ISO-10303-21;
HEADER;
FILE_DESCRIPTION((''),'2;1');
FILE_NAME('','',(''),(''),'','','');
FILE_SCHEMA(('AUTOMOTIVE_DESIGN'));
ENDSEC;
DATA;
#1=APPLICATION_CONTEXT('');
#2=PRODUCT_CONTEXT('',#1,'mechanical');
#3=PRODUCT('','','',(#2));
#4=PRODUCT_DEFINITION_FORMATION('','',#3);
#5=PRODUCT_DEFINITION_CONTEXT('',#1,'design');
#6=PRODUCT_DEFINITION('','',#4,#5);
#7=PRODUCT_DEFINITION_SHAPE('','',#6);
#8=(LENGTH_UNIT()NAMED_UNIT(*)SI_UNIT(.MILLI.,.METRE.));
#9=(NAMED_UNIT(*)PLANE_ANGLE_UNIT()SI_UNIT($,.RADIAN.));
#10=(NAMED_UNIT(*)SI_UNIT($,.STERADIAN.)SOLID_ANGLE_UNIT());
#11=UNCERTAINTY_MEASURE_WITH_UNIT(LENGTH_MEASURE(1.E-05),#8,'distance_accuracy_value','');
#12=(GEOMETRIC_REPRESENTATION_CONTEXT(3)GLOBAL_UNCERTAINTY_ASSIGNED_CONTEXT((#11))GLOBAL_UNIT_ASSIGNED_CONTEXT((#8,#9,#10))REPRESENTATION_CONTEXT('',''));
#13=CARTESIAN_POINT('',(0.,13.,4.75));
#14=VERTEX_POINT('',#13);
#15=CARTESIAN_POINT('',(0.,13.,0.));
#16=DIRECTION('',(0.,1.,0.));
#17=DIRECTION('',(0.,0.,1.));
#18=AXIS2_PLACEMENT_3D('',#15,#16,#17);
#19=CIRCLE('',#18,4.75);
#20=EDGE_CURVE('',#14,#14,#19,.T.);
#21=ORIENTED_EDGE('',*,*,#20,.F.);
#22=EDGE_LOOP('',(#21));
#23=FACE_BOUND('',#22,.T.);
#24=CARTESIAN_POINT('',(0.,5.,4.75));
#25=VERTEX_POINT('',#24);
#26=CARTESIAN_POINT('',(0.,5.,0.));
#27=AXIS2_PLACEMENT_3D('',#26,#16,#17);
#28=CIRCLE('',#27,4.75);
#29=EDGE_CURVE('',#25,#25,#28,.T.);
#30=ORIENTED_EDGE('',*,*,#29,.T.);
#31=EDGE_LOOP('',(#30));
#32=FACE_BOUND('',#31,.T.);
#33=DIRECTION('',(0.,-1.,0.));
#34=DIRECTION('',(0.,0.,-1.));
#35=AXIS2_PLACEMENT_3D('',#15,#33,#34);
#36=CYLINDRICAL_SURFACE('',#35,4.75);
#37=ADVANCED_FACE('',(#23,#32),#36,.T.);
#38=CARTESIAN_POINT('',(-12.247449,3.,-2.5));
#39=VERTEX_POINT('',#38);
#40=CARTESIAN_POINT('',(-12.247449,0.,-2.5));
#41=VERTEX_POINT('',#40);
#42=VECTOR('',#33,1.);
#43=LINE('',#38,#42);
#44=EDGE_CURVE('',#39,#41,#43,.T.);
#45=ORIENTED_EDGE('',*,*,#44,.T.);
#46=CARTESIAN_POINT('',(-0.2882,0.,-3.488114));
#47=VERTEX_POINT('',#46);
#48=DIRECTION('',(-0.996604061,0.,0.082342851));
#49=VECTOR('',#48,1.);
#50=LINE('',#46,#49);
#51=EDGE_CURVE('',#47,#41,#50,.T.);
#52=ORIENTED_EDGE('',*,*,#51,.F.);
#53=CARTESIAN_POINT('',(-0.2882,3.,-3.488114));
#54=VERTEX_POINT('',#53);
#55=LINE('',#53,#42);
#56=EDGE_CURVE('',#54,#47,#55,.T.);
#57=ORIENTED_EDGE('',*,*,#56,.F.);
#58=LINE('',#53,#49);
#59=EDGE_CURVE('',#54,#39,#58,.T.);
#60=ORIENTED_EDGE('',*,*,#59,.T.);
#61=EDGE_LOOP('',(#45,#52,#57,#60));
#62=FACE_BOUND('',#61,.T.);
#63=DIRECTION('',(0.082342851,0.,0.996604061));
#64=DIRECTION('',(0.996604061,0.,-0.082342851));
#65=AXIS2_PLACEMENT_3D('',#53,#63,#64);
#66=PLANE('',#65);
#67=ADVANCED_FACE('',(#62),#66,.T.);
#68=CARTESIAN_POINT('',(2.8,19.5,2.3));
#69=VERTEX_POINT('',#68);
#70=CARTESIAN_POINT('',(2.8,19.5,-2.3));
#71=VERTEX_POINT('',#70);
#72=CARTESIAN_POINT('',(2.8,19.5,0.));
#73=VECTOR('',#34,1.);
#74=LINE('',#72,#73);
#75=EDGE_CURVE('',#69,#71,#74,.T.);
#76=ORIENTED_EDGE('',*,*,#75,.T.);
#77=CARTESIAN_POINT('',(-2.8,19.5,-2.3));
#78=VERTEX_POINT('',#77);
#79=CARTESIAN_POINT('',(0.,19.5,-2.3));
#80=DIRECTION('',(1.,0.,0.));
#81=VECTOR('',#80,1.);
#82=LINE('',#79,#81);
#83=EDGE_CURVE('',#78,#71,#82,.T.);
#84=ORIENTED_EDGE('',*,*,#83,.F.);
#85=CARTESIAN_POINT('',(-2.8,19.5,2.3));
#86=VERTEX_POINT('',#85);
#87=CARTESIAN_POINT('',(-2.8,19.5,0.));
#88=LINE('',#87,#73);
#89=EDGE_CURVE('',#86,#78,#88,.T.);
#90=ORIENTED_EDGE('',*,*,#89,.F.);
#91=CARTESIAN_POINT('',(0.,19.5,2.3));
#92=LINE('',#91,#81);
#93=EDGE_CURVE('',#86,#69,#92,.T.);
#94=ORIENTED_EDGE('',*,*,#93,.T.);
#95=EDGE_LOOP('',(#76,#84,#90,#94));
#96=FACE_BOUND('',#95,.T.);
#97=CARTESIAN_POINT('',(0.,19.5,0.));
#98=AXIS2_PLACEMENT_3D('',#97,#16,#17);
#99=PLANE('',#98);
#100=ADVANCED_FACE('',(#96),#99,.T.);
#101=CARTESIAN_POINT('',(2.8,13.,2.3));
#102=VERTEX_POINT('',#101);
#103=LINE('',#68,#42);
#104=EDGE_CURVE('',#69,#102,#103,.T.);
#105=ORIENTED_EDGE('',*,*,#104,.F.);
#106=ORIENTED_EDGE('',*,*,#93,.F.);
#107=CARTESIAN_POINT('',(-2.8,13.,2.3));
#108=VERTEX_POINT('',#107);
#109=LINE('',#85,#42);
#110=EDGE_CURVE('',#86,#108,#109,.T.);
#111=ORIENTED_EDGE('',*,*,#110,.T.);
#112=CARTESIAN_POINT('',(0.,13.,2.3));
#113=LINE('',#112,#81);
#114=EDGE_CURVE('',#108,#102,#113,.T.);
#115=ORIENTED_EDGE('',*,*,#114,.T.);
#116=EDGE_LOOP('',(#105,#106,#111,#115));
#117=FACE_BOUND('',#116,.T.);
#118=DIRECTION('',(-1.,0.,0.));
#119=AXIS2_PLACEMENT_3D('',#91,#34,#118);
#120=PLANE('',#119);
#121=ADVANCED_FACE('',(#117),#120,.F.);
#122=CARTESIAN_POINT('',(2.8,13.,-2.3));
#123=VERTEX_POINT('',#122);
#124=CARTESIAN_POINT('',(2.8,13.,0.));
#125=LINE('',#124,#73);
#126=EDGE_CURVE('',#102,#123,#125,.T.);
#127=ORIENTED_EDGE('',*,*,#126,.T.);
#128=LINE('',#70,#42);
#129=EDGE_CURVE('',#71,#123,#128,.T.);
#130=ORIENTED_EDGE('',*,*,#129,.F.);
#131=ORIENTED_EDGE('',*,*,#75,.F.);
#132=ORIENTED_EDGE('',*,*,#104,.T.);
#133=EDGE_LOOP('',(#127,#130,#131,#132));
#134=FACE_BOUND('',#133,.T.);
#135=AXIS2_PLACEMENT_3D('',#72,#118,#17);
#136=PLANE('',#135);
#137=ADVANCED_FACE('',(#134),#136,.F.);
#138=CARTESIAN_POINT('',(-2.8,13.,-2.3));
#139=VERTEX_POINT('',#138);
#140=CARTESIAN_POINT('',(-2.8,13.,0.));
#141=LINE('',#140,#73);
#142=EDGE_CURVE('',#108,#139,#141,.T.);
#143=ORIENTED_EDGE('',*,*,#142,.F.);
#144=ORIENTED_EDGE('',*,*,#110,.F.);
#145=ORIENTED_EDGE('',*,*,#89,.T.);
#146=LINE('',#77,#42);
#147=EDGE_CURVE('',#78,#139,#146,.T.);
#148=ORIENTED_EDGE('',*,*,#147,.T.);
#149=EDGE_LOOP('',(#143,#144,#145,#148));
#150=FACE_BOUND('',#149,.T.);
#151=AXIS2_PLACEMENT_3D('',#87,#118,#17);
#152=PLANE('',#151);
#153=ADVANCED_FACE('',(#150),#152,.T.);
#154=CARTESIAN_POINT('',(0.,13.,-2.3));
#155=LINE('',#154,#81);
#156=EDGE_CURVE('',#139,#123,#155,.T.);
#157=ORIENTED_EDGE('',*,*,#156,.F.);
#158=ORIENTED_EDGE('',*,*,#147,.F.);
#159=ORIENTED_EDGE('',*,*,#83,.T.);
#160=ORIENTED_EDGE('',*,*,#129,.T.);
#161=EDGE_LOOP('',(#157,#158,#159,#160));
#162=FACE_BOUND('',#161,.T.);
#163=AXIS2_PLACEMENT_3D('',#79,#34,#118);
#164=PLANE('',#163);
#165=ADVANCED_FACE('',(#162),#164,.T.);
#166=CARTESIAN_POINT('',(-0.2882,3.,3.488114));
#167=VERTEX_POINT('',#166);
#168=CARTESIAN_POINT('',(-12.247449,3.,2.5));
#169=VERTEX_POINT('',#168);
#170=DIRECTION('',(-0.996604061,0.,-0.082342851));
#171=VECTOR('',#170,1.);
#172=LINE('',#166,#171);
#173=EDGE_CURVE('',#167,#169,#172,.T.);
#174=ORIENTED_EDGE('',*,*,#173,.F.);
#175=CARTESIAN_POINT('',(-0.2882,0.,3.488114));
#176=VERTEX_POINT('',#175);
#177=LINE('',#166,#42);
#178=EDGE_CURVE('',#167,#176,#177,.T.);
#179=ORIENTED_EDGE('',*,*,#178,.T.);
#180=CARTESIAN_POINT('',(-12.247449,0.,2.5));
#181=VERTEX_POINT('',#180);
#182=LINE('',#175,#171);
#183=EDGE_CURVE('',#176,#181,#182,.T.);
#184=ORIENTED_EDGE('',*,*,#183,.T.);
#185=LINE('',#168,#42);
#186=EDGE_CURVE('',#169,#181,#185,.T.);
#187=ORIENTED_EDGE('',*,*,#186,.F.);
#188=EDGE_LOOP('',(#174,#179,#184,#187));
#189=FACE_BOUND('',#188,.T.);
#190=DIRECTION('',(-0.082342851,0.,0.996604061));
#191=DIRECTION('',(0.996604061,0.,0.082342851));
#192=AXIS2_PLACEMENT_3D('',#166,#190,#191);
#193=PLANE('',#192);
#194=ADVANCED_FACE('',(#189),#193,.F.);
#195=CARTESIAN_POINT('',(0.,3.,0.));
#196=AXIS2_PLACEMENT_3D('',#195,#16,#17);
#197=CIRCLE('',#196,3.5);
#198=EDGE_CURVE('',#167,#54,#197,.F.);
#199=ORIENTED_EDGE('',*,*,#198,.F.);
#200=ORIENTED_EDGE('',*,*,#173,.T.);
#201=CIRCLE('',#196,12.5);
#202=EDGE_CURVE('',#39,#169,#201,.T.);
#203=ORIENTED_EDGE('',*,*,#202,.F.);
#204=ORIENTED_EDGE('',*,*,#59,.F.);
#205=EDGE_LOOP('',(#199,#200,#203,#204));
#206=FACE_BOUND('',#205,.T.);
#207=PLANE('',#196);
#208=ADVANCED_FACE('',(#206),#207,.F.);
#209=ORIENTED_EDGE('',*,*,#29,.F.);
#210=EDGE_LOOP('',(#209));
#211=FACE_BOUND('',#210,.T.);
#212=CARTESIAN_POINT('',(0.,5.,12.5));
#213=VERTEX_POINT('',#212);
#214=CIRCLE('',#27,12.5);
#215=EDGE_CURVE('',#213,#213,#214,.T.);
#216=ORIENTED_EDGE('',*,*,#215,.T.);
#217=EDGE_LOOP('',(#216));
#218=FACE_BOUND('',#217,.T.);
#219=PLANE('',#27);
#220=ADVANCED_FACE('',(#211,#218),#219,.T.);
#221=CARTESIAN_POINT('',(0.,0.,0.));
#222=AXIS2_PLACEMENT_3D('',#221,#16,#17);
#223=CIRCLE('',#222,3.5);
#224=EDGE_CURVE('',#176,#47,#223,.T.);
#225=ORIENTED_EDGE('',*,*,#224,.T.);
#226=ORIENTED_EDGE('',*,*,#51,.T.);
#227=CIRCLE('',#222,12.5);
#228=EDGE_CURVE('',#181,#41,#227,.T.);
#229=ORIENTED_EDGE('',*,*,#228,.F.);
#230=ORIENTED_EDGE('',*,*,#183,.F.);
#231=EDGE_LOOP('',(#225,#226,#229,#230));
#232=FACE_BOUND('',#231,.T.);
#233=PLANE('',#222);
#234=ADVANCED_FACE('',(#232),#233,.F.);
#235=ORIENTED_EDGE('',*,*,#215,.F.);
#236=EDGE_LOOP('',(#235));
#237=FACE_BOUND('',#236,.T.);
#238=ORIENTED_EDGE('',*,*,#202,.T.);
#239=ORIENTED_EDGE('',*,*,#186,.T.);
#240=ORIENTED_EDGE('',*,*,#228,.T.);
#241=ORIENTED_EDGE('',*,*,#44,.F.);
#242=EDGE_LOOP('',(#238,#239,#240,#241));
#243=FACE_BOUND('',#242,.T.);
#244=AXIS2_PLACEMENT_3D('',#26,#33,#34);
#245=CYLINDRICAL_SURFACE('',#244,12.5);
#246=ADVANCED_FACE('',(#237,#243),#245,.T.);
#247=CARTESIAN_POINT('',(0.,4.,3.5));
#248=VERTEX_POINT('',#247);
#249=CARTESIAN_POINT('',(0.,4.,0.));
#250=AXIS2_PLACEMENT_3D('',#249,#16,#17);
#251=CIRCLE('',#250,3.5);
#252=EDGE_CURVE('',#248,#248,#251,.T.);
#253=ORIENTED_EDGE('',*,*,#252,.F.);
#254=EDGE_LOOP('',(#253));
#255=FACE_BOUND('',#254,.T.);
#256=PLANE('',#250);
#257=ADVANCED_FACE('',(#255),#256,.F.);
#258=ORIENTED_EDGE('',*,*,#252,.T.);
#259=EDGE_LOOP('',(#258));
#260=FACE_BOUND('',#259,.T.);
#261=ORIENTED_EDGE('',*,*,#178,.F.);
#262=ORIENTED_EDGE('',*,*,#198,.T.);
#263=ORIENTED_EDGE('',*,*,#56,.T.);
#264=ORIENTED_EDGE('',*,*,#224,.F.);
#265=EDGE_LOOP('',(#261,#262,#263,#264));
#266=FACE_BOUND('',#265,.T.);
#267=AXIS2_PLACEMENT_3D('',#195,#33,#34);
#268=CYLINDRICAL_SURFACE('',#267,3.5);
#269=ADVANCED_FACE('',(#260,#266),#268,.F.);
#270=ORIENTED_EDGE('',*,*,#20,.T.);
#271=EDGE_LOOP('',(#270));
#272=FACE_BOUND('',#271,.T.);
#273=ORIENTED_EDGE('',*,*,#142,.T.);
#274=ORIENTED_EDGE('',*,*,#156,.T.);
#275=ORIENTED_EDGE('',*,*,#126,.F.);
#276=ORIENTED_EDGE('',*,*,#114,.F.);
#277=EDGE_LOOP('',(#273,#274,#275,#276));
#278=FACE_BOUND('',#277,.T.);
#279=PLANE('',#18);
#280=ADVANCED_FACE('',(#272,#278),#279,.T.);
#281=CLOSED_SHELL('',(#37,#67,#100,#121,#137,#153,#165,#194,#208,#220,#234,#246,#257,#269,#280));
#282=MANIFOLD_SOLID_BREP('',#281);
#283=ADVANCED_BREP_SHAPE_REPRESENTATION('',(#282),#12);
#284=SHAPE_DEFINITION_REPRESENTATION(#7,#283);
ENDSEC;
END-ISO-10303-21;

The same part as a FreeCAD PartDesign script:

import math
import FreeCAD as App
import Part
import Sketcher

V = App.Vector

doc = App.newDocument("Part")
body = doc.addObject("PartDesign::Body", "Body")

sketch1 = doc.addObject("Sketcher::SketchObject", "Sketch")
body.addObject(sketch1)
sketch1.AttachmentSupport = (doc.XZ_Plane, [""])
sketch1.MapMode = "FlatFace"
sketch1.addGeometry([
    Part.Circle(V(0, 0, 0), V(0, 0, 1), 12.5),
    Part.Circle(V(0, 0, 0), V(0, 0, 1), 4.75),
], False)
sketch1.addConstraint([
    Sketcher.Constraint("Coincident", 0, 3, -1, 1),
    Sketcher.Constraint("Coincident", 1, 3, -1, 1),
    Sketcher.Constraint("Diameter", 0, 25.0),
    Sketcher.Constraint("Diameter", 1, 9.5),
])
pad1 = doc.addObject("PartDesign::Pad", "Pad")
body.addObject(pad1)
pad1.Profile = sketch1
pad1.Length = 5
pad1.Reversed = True

sketch2 = doc.addObject("Sketcher::SketchObject", "Sketch001")
body.addObject(sketch2)
sketch2.AttachmentSupport = (doc.XZ_Plane, [""])
sketch2.MapMode = "FlatFace"
sketch2.addGeometry([
    Part.Circle(V(0, 0, 0), V(0, 0, 1), 4.75),
    Part.LineSegment(V(2.8, 2.3, 0), V(-2.8, 2.3, 0)),
    Part.LineSegment(V(-2.8, 2.3, 0), V(-2.8, -2.3, 0)),
    Part.LineSegment(V(-2.8, -2.3, 0), V(2.8, -2.3, 0)),
    Part.LineSegment(V(2.8, -2.3, 0), V(2.8, 2.3, 0)),
], False)
sketch2.addConstraint([
    Sketcher.Constraint("Coincident", 1, 2, 2, 1),
    Sketcher.Constraint("Coincident", 2, 2, 3, 1),
    Sketcher.Constraint("Coincident", 3, 2, 4, 1),
    Sketcher.Constraint("Coincident", 4, 2, 1, 1),
    Sketcher.Constraint("Horizontal", 1),
    Sketcher.Constraint("Vertical", 2),
    Sketcher.Constraint("Horizontal", 3),
    Sketcher.Constraint("Vertical", 4),
    Sketcher.Constraint("Coincident", 0, 3, -1, 1),
    Sketcher.Constraint("Symmetric", 1, 2, 3, 2, -1, 1),
    Sketcher.Constraint("Diameter", 0, 9.5),
    Sketcher.Constraint("DistanceX", 1, 2, 1, 1, 5.6),
    Sketcher.Constraint("DistanceY", 2, 2, 2, 1, 4.6),
])
pad2 = doc.addObject("PartDesign::Pad", "Pad001")
body.addObject(pad2)
pad2.Profile = sketch2
pad2.Length = 13
pad2.Reversed = True

sketch3 = doc.addObject("Sketcher::SketchObject", "Sketch002")
body.addObject(sketch3)
sketch3.AttachmentSupport = (doc.XZ_Plane, [""])
sketch3.MapMode = "FlatFace"
sketch3.addGeometry([
    Part.LineSegment(V(-2.8, -2.3, 0), V(-2.8, 2.3, 0)),
    Part.LineSegment(V(-2.8, 2.3, 0), V(2.8, 2.3, 0)),
    Part.LineSegment(V(2.8, 2.3, 0), V(2.8, -2.3, 0)),
    Part.LineSegment(V(2.8, -2.3, 0), V(-2.8, -2.3, 0)),
], False)
sketch3.addConstraint([
    Sketcher.Constraint("Coincident", 0, 2, 1, 1),
    Sketcher.Constraint("Coincident", 1, 2, 2, 1),
    Sketcher.Constraint("Coincident", 2, 2, 3, 1),
    Sketcher.Constraint("Coincident", 3, 2, 0, 1),
    Sketcher.Constraint("Vertical", 0),
    Sketcher.Constraint("Horizontal", 1),
    Sketcher.Constraint("Vertical", 2),
    Sketcher.Constraint("Horizontal", 3),
    Sketcher.Constraint("Symmetric", 0, 2, 2, 2, -1, 1),
    Sketcher.Constraint("DistanceX", 1, 1, 1, 2, 5.6),
    Sketcher.Constraint("DistanceY", 0, 1, 0, 2, 4.6),
])
pad3 = doc.addObject("PartDesign::Pad", "Pad002")
body.addObject(pad3)
pad3.Profile = sketch3
pad3.Length = 19.5
pad3.Reversed = True

sketch4 = doc.addObject("Sketcher::SketchObject", "Sketch003")
body.addObject(sketch4)
sketch4.AttachmentSupport = (doc.XZ_Plane, [""])
sketch4.MapMode = "FlatFace"
sketch4.addGeometry([
    Part.LineSegment(V(-0.2882, -3.488114, 0), V(-12.247449, -2.5, 0)),
    Part.ArcOfCircle(Part.Circle(V(0, 0, 0), V(0, 0, 1), 12.5), math.radians(168.463041), math.radians(191.536959)),
    Part.LineSegment(V(-12.247449, 2.5, 0), V(-0.2882, 3.488114, 0)),
    Part.ArcOfCircle(Part.Circle(V(0, 0, 0), V(0, 0, 1), 3.5), math.radians(-94.723246), math.radians(94.723246)),
], False)
sketch4.addConstraint([
    Sketcher.Constraint("Coincident", 0, 2, 1, 2),
    Sketcher.Constraint("Coincident", 1, 1, 2, 1),
    Sketcher.Constraint("Tangent", 2, 2, 3, 2),
    Sketcher.Constraint("Tangent", 3, 1, 0, 1),
    Sketcher.Constraint("Coincident", 1, 3, -1, 1),
    Sketcher.Constraint("Coincident", 3, 3, -1, 1),
    Sketcher.Constraint("Vertical", 0, 2, 1, 1),
    Sketcher.Constraint("Radius", 1, 12.5),
    Sketcher.Constraint("Radius", 3, 3.5),
    Sketcher.Constraint("DistanceY", 0, 2, 1, 1, 5.0),
])
pocket1 = doc.addObject("PartDesign::Pocket", "Pocket")
body.addObject(pocket1)
pocket1.Profile = sketch4
pocket1.Length = 3

sketch5 = doc.addObject("Sketcher::SketchObject", "Sketch004")
body.addObject(sketch5)
sketch5.AttachmentSupport = (doc.XZ_Plane, [""])
sketch5.MapMode = "FlatFace"
sketch5.addGeometry(Part.Circle(V(0, 0, 0), V(0, 0, 1), 3.5), False)
sketch5.addConstraint([
    Sketcher.Constraint("Coincident", 0, 3, -1, 1),
    Sketcher.Constraint("Diameter", 0, 7.0),
])
pocket2 = doc.addObject("PartDesign::Pocket", "Pocket001")
body.addObject(pocket2)
pocket2.Profile = sketch5
pocket2.Length = 4

doc.recompute()
